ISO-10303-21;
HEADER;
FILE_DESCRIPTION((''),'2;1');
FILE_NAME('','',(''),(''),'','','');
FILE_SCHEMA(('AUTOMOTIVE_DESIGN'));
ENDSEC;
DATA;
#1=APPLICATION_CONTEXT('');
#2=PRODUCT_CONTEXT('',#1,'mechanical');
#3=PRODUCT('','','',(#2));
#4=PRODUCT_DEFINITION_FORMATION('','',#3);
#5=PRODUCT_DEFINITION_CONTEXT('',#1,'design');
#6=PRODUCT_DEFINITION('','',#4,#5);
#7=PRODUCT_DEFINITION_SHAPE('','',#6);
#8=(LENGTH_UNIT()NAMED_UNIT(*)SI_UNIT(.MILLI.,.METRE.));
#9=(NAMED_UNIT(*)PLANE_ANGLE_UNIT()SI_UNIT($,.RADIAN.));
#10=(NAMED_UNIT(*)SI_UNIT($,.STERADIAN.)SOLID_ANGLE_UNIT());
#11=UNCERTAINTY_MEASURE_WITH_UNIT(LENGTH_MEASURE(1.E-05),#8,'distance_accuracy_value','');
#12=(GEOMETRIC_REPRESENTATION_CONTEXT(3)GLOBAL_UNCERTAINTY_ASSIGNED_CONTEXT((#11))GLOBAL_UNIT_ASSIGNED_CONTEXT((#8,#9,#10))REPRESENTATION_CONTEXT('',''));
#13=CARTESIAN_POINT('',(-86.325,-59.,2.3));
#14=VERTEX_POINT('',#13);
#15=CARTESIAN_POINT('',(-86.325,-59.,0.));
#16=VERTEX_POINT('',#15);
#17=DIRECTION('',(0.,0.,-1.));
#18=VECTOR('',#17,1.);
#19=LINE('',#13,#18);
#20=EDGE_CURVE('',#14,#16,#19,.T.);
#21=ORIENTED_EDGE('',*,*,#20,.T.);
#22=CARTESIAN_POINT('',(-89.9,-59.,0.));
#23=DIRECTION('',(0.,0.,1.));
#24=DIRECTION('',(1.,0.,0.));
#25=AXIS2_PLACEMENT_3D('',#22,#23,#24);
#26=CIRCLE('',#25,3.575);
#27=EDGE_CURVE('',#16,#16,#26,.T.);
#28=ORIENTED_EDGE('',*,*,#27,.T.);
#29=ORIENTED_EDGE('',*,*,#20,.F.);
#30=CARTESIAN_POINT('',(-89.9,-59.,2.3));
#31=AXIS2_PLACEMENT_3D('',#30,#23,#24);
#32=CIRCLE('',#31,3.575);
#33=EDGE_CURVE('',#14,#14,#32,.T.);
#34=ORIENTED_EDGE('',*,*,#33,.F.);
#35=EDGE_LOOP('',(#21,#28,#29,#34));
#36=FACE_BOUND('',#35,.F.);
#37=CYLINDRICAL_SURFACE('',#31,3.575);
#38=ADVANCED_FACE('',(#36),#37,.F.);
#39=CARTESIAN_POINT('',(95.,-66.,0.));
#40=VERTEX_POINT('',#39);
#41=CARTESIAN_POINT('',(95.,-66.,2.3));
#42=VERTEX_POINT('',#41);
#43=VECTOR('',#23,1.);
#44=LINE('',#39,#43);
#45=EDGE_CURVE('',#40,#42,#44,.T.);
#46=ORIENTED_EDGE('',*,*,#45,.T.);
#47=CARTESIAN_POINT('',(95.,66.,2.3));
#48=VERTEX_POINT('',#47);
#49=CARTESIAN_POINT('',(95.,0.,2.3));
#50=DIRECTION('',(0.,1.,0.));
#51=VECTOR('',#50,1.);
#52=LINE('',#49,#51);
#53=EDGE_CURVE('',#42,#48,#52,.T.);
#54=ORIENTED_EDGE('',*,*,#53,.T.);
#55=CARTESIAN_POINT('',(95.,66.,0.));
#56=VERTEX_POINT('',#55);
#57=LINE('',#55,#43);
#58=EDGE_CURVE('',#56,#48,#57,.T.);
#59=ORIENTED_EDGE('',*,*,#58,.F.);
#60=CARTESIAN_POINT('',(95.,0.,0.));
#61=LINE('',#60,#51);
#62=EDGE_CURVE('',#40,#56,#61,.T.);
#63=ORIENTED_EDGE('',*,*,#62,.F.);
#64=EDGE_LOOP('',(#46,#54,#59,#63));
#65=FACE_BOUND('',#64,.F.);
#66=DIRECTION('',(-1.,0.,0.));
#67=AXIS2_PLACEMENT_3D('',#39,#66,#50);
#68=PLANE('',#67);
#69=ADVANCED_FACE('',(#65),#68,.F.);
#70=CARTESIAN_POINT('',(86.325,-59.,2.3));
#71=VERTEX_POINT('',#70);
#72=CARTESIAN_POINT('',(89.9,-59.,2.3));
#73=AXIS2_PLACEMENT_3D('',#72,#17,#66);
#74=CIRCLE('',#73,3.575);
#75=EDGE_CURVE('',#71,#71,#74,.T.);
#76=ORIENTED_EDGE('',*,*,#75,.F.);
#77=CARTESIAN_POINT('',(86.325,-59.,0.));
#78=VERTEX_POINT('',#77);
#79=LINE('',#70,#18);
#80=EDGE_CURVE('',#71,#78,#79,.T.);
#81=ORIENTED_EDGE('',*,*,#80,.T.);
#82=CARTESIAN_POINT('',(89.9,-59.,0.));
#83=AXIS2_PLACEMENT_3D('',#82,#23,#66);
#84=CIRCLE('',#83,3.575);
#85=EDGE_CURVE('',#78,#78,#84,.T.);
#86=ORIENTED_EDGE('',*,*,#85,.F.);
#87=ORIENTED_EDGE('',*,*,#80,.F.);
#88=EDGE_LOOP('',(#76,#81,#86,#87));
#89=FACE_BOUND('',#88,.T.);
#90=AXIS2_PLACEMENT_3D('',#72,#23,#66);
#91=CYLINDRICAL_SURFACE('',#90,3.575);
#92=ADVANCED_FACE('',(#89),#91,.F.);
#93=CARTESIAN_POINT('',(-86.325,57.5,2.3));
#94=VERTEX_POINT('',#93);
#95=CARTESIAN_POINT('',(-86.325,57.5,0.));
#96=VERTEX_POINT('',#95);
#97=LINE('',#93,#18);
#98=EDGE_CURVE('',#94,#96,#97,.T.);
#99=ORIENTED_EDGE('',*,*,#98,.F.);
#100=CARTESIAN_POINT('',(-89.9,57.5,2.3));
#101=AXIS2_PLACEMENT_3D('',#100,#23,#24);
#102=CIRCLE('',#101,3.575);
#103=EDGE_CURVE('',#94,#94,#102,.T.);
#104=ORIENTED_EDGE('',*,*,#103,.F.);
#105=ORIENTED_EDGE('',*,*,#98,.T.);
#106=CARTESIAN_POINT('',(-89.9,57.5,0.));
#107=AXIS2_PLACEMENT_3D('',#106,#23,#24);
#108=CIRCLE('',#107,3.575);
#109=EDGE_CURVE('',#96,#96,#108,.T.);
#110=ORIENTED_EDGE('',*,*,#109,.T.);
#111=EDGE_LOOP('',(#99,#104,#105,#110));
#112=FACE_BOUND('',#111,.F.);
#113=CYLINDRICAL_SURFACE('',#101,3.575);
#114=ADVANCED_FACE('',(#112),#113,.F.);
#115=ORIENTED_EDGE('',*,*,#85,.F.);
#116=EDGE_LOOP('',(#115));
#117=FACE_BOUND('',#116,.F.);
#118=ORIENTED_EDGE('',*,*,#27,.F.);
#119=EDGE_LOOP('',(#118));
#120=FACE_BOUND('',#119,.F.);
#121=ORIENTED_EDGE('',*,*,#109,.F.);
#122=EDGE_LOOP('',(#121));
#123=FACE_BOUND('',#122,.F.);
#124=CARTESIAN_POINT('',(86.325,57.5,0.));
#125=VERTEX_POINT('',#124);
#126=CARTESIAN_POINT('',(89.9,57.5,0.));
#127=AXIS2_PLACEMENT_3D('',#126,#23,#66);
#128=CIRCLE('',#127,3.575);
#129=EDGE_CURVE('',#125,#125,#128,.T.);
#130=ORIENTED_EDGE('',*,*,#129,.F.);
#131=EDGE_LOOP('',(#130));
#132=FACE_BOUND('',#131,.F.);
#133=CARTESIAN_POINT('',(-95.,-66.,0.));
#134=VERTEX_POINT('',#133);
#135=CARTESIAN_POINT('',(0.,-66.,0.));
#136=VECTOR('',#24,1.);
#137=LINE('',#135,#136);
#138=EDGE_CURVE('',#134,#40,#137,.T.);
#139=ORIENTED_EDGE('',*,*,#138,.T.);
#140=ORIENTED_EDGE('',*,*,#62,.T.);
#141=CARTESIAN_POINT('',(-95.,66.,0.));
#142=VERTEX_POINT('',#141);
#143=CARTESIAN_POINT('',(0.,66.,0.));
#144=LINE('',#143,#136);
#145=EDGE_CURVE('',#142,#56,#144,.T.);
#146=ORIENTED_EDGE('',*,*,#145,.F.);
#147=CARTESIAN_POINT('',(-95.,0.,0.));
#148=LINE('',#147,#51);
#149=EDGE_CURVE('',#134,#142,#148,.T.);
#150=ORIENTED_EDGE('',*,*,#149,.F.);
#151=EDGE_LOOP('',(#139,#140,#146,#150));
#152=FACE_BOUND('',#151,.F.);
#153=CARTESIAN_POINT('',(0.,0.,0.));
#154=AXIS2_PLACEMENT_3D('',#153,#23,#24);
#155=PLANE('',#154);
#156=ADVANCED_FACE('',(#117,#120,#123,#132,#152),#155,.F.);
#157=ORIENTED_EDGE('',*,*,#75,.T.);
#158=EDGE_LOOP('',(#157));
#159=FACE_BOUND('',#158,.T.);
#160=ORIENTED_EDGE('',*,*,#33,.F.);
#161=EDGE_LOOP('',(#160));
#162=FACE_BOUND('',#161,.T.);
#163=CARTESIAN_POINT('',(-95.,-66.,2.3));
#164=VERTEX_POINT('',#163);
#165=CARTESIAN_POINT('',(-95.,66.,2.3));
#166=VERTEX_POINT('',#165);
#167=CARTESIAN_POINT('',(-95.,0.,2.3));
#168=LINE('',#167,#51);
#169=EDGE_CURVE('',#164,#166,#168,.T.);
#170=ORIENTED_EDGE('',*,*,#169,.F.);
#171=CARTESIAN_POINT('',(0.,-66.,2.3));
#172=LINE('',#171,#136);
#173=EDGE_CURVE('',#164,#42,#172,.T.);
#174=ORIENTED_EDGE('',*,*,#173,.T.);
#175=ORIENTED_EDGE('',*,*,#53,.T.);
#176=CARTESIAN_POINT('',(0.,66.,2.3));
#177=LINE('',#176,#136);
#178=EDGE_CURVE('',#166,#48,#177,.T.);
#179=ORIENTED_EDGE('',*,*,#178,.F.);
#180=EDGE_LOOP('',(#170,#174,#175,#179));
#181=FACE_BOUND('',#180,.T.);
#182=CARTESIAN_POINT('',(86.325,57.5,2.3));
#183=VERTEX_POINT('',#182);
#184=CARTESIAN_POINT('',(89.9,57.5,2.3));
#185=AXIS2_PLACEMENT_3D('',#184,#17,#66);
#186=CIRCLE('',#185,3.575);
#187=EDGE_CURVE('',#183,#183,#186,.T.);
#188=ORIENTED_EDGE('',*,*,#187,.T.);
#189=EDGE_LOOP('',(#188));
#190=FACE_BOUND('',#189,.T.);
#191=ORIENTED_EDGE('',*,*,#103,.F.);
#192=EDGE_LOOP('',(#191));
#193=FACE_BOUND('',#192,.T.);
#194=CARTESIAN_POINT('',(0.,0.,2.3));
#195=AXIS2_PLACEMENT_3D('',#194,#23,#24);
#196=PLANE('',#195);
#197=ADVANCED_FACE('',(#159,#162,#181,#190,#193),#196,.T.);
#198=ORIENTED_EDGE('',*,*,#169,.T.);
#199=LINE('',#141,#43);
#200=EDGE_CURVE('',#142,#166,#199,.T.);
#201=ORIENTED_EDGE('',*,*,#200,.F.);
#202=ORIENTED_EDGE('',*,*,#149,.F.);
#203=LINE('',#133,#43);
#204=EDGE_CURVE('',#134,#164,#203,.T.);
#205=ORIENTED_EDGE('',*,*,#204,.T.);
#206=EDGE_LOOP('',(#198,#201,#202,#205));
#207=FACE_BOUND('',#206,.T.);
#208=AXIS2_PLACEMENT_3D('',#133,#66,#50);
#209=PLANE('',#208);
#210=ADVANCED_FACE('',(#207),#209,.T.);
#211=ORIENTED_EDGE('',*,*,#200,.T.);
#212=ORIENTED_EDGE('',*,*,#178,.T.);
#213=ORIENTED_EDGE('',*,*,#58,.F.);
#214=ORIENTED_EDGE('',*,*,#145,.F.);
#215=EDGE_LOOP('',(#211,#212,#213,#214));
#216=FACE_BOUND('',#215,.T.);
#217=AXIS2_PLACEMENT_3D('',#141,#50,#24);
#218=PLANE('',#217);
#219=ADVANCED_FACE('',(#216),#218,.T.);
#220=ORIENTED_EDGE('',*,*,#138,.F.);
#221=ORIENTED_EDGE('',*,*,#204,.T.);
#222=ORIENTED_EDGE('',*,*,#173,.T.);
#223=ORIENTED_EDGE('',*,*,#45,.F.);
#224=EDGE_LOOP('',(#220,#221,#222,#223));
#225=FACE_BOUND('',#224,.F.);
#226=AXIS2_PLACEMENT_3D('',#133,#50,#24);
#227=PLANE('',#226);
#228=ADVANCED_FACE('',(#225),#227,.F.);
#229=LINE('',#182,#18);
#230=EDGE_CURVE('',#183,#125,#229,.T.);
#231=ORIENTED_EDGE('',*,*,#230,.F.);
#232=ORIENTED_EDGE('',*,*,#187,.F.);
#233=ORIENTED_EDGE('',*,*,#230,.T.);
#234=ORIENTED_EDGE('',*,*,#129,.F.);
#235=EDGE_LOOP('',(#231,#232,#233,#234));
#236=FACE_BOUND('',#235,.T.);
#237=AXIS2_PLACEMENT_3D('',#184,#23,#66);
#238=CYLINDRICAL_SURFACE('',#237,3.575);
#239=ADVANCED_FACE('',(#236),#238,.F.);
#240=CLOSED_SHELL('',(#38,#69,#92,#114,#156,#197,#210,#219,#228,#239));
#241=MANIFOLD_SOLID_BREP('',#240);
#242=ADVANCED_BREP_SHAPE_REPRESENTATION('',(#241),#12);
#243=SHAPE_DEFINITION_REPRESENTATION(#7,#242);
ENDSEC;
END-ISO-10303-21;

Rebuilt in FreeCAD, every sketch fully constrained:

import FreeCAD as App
import Part
import Sketcher

doc = App.newDocument("Part")
params = doc.addObject("Spreadsheet::Sheet", "Params")
for row, (alias, value) in enumerate([
    ("sketch1_width", "190 mm"),
    ("sketch1_height", "132 mm"),
    ("pad1_length", "2.3 mm"),
    ("sketch2_diameter", "7.15 mm"),
    ("sketch3_diameter", "7.15 mm"),
    ("linearpattern_pitch", "116.5 mm"),
], start=1):
    params.set(f"A{row}", alias)
    params.set(f"B{row}", "=" + value)
    params.setAlias(f"B{row}", alias)

body = doc.addObject("PartDesign::Body", "Body")

# Sketch on XY plane
sketch1 = body.newObject("Sketcher::SketchObject", "Sketch")
sketch1.AttachmentSupport = (doc.getObject("XY_Plane"), [""])
sketch1.MapMode = "FlatFace"
sketch1.addGeometry([
    Part.LineSegment(App.Vector(-95, 66, 0), App.Vector(-95, -66, 0)),
    Part.LineSegment(App.Vector(-95, -66, 0), App.Vector(95, -66, 0)),
    Part.LineSegment(App.Vector(95, -66, 0), App.Vector(95, 66, 0)),
    Part.LineSegment(App.Vector(95, 66, 0), App.Vector(-95, 66, 0)),
], False)
sketch1.addConstraint([
    Sketcher.Constraint("Coincident", 0, 2, 1, 1),
    Sketcher.Constraint("Coincident", 1, 2, 2, 1),
    Sketcher.Constraint("Coincident", 2, 2, 3, 1),
    Sketcher.Constraint("Coincident", 3, 2, 0, 1),
    Sketcher.Constraint("Vertical", 0),
    Sketcher.Constraint("Horizontal", 1),
    Sketcher.Constraint("Vertical", 2),
    Sketcher.Constraint("Horizontal", 3),
    Sketcher.Constraint("Symmetric", 0, 2, 2, 2, -1, 1),
    Sketcher.Constraint("DistanceX", 1, 1, 1, 2, 190.0),
    Sketcher.Constraint("DistanceY", 0, 2, 0, 1, 132.0),
])
sketch1.setExpression("Constraints[9]", "Params.sketch1_width")
sketch1.setExpression("Constraints[10]", "Params.sketch1_height")
pad1 = body.newObject("PartDesign::Pad", "Pad")
pad1.Profile = sketch1
pad1.setExpression("Length", "Params.pad1_length")

# Sketch on XY plane
sketch2 = body.newObject("Sketcher::SketchObject", "Sketch001")
sketch2.AttachmentSupport = (doc.getObject("XY_Plane"), [""])
sketch2.MapMode = "FlatFace"
sketch2.AttachmentOffset = App.Placement(App.Vector(0, 0, 2.3), App.Rotation())
sketch2.addGeometry(Part.Circle(App.Vector(-89.9, 57.5, 0), App.Vector(0, 0, 1), 3.6), False)
sketch2.addConstraint([
    Sketcher.Constraint("Diameter", 0, 7.15),
    Sketcher.Constraint("DistanceX", 0, 3, -1, 1, 89.9),
    Sketcher.Constraint("DistanceY", -1, 1, 0, 3, 57.5),
])
sketch2.setExpression("Constraints[0]", "Params.sketch2_diameter")
pocket1 = body.newObject("PartDesign::Pocket", "Pocket")
pocket1.Profile = sketch2
pocket1.Type = "ThroughAll"

# Sketch on XY plane
sketch3 = body.newObject("Sketcher::SketchObject", "Sketch002")
sketch3.AttachmentSupport = (doc.getObject("XY_Plane"), [""])
sketch3.MapMode = "FlatFace"
sketch3.AttachmentOffset = App.Placement(App.Vector(0, 0, 2.3), App.Rotation())
sketch3.addGeometry(Part.Circle(App.Vector(89.9, 57.5, 0), App.Vector(0, 0, 1), 3.6), False)
sketch3.addConstraint([
    Sketcher.Constraint("Diameter", 0, 7.15),
    Sketcher.Constraint("DistanceX", -1, 1, 0, 3, 89.9),
    Sketcher.Constraint("DistanceY", -1, 1, 0, 3, 57.5),
])
sketch3.setExpression("Constraints[0]", "Params.sketch3_diameter")
pocket2 = body.newObject("PartDesign::Pocket", "Pocket001")
pocket2.Profile = sketch3
pocket2.Type = "ThroughAll"
doc.recompute()

linearpattern = body.newObject("PartDesign::LinearPattern", "LinearPattern")
linearpattern.Originals = [pocket1, pocket2]
linearpattern.Direction = (doc.getObject("Y_Axis"), [""])
linearpattern.Mode = "offset"
linearpattern.setExpression("Offset", "Params.linearpattern_pitch")
linearpattern.Occurrences = 2
linearpattern.Reversed = True
body.Tip = linearpattern

doc.recompute()
